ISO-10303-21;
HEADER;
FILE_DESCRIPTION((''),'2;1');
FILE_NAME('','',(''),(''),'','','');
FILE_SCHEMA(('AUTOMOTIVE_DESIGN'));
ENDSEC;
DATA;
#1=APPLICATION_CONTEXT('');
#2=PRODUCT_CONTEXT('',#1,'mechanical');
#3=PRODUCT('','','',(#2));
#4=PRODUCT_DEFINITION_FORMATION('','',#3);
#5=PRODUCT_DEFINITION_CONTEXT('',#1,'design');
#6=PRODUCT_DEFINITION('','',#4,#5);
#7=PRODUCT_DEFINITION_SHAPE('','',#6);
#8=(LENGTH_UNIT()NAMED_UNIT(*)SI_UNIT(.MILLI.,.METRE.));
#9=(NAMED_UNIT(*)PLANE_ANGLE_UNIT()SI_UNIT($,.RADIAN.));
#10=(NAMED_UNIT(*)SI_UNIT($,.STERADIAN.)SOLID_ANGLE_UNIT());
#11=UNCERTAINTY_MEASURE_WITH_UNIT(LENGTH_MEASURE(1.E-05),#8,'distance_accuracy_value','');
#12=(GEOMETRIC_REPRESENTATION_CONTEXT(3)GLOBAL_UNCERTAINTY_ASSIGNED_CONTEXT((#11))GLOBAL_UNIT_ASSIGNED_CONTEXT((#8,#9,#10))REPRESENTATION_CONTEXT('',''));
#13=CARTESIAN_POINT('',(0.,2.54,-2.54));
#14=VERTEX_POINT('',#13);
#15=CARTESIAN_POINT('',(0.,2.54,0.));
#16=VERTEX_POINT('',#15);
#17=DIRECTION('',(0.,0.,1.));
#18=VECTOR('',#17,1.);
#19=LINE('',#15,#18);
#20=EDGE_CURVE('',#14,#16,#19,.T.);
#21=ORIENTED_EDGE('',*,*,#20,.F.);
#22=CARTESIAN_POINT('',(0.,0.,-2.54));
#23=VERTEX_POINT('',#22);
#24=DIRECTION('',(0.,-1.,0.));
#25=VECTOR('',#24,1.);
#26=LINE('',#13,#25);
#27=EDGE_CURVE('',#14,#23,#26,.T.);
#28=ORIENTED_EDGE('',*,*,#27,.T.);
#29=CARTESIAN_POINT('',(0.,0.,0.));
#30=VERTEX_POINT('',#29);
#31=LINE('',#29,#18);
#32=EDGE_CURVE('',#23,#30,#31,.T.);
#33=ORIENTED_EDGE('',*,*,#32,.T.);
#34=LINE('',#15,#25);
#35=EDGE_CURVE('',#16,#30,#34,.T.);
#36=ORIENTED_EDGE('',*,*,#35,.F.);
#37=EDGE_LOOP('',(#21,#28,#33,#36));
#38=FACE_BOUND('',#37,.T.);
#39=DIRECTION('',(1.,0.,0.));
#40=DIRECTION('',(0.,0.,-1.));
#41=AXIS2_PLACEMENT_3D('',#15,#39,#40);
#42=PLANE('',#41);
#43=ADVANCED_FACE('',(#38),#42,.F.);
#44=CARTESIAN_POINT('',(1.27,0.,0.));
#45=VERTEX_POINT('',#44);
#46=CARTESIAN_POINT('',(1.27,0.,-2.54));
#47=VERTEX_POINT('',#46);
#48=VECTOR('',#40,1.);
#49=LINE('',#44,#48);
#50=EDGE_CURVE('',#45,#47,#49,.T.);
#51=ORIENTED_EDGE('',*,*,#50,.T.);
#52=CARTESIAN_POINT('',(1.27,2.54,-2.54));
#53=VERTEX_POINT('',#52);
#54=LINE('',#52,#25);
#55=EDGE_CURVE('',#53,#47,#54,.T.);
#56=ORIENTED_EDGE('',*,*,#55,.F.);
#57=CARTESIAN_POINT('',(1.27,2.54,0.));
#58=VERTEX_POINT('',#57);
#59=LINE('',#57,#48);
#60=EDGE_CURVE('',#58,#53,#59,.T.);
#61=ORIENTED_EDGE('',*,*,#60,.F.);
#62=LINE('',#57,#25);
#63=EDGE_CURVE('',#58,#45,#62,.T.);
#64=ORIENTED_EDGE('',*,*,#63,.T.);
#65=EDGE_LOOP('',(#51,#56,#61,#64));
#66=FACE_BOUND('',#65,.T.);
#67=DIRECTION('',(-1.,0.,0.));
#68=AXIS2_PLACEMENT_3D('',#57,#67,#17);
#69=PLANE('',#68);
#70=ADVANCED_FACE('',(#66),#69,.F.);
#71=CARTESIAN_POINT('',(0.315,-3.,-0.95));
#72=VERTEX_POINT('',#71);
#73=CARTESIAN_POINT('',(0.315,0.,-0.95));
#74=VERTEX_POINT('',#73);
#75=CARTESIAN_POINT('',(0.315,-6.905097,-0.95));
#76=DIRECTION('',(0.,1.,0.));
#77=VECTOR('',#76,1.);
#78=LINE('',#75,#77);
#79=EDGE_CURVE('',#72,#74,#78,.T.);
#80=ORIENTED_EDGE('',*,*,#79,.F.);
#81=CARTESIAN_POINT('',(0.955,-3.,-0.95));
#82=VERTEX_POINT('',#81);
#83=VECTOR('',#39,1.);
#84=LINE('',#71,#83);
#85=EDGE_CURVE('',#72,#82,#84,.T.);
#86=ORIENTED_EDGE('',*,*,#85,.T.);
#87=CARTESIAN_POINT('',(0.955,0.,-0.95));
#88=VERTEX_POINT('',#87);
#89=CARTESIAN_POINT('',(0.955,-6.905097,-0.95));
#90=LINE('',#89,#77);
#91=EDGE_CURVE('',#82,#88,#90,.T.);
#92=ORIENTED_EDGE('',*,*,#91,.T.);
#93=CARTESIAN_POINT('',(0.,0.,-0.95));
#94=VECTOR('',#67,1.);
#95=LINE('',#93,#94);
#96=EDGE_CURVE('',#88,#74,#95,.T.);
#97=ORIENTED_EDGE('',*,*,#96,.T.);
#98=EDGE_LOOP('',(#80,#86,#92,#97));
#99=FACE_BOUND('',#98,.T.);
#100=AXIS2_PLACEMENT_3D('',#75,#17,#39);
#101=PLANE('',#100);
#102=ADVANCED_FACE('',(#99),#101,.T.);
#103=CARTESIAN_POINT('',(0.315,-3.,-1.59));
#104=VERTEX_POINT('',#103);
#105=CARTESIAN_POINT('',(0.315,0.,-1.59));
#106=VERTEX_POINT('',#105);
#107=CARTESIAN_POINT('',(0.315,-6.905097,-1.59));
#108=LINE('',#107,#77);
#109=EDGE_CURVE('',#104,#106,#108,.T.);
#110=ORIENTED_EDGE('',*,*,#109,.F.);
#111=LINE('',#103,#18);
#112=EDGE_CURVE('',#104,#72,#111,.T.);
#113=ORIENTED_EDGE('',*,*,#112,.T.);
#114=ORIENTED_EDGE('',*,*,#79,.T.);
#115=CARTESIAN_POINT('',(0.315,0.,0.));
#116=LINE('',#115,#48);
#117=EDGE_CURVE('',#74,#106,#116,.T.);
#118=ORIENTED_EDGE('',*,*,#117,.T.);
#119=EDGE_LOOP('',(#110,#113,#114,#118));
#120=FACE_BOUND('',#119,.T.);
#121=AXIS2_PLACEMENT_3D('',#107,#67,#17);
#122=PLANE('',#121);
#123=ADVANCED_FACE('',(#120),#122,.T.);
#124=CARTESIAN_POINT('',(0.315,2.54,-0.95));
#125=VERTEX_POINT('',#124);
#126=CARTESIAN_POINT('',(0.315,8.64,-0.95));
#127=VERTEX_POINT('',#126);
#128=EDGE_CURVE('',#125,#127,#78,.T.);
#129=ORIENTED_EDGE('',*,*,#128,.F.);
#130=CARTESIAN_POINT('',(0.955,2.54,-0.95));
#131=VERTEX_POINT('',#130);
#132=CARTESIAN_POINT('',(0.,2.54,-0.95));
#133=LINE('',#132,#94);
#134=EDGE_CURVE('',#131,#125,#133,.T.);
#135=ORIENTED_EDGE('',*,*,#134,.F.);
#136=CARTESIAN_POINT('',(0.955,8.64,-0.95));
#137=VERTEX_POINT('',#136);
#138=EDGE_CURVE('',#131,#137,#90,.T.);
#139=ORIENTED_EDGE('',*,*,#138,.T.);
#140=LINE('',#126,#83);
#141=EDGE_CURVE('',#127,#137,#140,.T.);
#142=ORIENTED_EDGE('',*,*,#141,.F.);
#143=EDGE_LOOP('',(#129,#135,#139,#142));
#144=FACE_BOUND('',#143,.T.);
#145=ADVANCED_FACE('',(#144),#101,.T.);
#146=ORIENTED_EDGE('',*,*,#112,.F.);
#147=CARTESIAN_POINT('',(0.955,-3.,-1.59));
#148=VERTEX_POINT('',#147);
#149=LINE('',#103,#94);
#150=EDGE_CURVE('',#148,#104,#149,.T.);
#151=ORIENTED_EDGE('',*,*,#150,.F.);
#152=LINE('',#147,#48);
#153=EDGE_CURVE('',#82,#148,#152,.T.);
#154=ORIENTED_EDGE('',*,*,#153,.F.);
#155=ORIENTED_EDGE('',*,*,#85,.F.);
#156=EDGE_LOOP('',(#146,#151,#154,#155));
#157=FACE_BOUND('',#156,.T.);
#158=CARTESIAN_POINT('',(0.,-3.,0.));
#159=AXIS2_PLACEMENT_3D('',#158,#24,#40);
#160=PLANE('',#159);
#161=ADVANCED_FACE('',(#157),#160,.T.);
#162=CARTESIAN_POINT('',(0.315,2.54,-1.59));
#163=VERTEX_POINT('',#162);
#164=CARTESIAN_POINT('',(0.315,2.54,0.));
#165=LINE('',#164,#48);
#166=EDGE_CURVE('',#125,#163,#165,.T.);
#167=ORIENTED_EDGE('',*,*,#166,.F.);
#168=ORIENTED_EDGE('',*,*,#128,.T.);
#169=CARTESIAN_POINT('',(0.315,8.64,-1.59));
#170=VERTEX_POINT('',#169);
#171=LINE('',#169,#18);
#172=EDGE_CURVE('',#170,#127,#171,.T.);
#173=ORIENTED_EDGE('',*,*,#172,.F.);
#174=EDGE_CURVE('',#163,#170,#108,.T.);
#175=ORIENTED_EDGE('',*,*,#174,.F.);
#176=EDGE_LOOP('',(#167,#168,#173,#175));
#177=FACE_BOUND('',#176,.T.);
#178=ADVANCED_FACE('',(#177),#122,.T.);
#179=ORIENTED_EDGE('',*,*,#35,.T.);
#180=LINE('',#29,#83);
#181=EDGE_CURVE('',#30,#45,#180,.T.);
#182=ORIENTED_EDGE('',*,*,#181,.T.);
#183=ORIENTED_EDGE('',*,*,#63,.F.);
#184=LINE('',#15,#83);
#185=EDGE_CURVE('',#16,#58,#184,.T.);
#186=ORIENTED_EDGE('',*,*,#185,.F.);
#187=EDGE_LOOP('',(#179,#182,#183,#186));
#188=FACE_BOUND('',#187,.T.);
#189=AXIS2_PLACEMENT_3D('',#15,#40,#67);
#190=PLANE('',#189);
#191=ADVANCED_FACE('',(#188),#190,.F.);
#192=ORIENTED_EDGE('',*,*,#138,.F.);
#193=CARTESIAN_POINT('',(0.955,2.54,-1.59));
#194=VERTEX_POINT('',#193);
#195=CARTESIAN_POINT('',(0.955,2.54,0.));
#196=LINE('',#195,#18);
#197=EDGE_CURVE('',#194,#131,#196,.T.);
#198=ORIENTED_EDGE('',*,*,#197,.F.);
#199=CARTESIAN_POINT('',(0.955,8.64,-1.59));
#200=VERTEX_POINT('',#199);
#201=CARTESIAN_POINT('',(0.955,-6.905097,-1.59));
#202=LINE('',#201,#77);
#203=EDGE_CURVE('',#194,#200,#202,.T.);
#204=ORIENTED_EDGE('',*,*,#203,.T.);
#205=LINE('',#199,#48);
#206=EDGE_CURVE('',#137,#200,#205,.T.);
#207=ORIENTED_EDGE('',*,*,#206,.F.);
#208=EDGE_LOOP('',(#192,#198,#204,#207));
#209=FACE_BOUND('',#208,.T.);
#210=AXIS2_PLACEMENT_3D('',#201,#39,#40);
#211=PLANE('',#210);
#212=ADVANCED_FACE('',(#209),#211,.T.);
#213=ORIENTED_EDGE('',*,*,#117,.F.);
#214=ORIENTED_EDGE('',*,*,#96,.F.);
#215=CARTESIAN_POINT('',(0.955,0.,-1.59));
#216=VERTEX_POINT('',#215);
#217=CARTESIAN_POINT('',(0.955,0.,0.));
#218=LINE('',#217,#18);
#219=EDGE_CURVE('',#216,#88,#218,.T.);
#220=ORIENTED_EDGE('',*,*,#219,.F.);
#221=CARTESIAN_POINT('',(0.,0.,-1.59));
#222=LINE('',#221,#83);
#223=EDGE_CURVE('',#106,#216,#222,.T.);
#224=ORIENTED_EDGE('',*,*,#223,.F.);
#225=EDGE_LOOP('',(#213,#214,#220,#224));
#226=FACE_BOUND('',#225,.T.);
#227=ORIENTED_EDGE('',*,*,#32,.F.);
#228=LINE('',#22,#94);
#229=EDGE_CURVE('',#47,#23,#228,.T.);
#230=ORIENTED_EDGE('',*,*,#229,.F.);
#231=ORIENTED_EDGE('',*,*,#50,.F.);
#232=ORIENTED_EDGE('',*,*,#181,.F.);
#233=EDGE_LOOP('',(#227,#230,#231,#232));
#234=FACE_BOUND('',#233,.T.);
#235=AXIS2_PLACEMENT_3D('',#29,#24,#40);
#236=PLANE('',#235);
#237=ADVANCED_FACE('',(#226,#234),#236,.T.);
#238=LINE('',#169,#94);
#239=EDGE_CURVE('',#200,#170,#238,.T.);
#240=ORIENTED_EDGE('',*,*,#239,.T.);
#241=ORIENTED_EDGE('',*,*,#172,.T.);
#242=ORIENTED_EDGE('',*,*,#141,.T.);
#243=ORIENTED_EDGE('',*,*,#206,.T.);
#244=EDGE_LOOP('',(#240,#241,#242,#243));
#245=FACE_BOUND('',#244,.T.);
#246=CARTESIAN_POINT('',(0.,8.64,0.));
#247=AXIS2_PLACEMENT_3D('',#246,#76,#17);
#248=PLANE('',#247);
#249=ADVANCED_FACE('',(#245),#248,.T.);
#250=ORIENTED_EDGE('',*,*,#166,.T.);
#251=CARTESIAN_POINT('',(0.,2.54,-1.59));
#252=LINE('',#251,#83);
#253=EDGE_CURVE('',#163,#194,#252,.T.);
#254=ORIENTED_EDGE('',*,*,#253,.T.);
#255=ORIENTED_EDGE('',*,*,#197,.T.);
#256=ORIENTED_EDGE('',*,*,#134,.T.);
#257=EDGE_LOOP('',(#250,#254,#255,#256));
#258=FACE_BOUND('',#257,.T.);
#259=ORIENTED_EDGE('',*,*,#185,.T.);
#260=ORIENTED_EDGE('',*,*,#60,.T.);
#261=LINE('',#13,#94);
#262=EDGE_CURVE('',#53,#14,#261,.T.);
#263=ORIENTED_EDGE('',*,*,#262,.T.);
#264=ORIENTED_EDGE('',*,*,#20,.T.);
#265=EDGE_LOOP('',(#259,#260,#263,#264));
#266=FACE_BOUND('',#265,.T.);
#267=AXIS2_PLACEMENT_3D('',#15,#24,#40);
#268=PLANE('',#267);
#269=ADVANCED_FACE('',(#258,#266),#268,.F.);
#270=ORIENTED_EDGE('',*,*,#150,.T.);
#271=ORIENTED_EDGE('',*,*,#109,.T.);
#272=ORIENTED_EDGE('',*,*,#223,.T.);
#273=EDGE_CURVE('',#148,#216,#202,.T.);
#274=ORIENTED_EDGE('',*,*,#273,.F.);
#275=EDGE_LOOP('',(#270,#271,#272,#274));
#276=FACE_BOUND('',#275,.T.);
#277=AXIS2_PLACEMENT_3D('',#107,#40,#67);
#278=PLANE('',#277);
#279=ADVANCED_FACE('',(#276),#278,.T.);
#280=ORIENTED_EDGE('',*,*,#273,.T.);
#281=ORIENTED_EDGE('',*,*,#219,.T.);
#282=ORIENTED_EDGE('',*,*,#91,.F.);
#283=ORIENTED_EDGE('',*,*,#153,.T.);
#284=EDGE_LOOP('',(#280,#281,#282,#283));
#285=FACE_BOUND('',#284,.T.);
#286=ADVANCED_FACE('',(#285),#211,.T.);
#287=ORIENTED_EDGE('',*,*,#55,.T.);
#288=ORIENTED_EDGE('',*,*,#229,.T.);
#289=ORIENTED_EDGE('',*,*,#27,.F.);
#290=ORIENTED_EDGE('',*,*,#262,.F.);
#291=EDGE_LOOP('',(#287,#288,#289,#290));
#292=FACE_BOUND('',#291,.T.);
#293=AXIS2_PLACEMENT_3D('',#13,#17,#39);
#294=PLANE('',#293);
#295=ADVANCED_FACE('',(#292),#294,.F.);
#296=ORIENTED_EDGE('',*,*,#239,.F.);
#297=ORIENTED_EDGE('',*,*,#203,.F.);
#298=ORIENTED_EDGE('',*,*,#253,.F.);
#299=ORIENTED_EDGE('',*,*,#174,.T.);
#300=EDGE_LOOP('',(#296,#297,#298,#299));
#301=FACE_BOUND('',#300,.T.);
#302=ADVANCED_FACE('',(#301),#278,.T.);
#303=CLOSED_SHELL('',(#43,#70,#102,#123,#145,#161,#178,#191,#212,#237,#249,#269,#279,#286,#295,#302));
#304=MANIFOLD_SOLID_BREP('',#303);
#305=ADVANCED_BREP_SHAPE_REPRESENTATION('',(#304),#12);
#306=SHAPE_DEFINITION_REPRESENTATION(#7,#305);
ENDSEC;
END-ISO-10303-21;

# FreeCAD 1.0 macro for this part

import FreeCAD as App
import Part
import Sketcher
Q = App.Units.Quantity


def add_polygon(sketch, points):
    """Adds a closed chain of lines whose ends are joined by coincident constraints."""
    first, n = sketch.GeometryCount, len(points)
    for a, b in zip(points, points[1:] + points[:1]):
        sketch.addGeometry(Part.LineSegment(App.Vector(*a, 0), App.Vector(*b, 0)), False)
    for i in range(n):
        sketch.addConstraint(Sketcher.Constraint("Coincident", first + i, 2, first + (i + 1) % n, 1))

doc = App.newDocument("Part")
body = doc.addObject("PartDesign::Body", "Body")

# Sketch on XZ plane
sketch1 = body.newObject("Sketcher::SketchObject", "Sketch")
sketch1.AttachmentSupport = (doc.getObject("XZ_Plane"), [""])
sketch1.MapMode = "FlatFace"
add_polygon(sketch1, [(0, -2.5), (0, 0), (1.3, 0), (1.3, -2.5)])  # lines 0-3
sketch1.addConstraint([
    Sketcher.Constraint("Vertical", 0),
    Sketcher.Constraint("Horizontal", 1),
    Sketcher.Constraint("Vertical", 2),
    Sketcher.Constraint("Horizontal", 3),
    Sketcher.Constraint("Coincident", 0, 2, -1, 1),
    Sketcher.Constraint("DistanceY", 0, 1, 0, 2, Q("0.1 in")),
    Sketcher.Constraint("DistanceX", 1, 1, 1, 2, Q("0.05 in")),
])
pad1 = body.newObject("PartDesign::Pad", "Pad")
pad1.Profile = sketch1
pad1.Length = Q("0.1 in")
pad1.Reversed = True

# Sketch on XZ plane
sketch2 = body.newObject("Sketcher::SketchObject", "Sketch001")
sketch2.AttachmentSupport = (doc.getObject("XZ_Plane"), [""])
sketch2.MapMode = "FlatFace"
sketch2.AttachmentOffset = App.Placement(App.Vector(0, 0, -0.1 * 25.4), App.Rotation())
add_polygon(sketch2, [(0.3, -1.6), (0.3, -0.9), (1, -0.9), (1, -1.6)])  # lines 0-3
sketch2.addConstraint([
    Sketcher.Constraint("Vertical", 0),
    Sketcher.Constraint("Horizontal", 1),
    Sketcher.Constraint("Vertical", 2),
    Sketcher.Constraint("Horizontal", 3),
    Sketcher.Constraint("Equal", 3, 0),
    Sketcher.Constraint("DistanceX", 1, 1, 1, 2, 0.64),
    Sketcher.Constraint("DistanceX", -1, 1, 0, 2, 0.315),
    Sketcher.Constraint("DistanceY", 0, 2, -1, 1, 0.95),
])
pad2 = body.newObject("PartDesign::Pad", "Pad001")
pad2.Profile = sketch2
pad2.Type = "TwoLengths"
pad2.Length = 6.1
pad2.Length2 = 5.54
pad2.Reversed = True

doc.recompute()
